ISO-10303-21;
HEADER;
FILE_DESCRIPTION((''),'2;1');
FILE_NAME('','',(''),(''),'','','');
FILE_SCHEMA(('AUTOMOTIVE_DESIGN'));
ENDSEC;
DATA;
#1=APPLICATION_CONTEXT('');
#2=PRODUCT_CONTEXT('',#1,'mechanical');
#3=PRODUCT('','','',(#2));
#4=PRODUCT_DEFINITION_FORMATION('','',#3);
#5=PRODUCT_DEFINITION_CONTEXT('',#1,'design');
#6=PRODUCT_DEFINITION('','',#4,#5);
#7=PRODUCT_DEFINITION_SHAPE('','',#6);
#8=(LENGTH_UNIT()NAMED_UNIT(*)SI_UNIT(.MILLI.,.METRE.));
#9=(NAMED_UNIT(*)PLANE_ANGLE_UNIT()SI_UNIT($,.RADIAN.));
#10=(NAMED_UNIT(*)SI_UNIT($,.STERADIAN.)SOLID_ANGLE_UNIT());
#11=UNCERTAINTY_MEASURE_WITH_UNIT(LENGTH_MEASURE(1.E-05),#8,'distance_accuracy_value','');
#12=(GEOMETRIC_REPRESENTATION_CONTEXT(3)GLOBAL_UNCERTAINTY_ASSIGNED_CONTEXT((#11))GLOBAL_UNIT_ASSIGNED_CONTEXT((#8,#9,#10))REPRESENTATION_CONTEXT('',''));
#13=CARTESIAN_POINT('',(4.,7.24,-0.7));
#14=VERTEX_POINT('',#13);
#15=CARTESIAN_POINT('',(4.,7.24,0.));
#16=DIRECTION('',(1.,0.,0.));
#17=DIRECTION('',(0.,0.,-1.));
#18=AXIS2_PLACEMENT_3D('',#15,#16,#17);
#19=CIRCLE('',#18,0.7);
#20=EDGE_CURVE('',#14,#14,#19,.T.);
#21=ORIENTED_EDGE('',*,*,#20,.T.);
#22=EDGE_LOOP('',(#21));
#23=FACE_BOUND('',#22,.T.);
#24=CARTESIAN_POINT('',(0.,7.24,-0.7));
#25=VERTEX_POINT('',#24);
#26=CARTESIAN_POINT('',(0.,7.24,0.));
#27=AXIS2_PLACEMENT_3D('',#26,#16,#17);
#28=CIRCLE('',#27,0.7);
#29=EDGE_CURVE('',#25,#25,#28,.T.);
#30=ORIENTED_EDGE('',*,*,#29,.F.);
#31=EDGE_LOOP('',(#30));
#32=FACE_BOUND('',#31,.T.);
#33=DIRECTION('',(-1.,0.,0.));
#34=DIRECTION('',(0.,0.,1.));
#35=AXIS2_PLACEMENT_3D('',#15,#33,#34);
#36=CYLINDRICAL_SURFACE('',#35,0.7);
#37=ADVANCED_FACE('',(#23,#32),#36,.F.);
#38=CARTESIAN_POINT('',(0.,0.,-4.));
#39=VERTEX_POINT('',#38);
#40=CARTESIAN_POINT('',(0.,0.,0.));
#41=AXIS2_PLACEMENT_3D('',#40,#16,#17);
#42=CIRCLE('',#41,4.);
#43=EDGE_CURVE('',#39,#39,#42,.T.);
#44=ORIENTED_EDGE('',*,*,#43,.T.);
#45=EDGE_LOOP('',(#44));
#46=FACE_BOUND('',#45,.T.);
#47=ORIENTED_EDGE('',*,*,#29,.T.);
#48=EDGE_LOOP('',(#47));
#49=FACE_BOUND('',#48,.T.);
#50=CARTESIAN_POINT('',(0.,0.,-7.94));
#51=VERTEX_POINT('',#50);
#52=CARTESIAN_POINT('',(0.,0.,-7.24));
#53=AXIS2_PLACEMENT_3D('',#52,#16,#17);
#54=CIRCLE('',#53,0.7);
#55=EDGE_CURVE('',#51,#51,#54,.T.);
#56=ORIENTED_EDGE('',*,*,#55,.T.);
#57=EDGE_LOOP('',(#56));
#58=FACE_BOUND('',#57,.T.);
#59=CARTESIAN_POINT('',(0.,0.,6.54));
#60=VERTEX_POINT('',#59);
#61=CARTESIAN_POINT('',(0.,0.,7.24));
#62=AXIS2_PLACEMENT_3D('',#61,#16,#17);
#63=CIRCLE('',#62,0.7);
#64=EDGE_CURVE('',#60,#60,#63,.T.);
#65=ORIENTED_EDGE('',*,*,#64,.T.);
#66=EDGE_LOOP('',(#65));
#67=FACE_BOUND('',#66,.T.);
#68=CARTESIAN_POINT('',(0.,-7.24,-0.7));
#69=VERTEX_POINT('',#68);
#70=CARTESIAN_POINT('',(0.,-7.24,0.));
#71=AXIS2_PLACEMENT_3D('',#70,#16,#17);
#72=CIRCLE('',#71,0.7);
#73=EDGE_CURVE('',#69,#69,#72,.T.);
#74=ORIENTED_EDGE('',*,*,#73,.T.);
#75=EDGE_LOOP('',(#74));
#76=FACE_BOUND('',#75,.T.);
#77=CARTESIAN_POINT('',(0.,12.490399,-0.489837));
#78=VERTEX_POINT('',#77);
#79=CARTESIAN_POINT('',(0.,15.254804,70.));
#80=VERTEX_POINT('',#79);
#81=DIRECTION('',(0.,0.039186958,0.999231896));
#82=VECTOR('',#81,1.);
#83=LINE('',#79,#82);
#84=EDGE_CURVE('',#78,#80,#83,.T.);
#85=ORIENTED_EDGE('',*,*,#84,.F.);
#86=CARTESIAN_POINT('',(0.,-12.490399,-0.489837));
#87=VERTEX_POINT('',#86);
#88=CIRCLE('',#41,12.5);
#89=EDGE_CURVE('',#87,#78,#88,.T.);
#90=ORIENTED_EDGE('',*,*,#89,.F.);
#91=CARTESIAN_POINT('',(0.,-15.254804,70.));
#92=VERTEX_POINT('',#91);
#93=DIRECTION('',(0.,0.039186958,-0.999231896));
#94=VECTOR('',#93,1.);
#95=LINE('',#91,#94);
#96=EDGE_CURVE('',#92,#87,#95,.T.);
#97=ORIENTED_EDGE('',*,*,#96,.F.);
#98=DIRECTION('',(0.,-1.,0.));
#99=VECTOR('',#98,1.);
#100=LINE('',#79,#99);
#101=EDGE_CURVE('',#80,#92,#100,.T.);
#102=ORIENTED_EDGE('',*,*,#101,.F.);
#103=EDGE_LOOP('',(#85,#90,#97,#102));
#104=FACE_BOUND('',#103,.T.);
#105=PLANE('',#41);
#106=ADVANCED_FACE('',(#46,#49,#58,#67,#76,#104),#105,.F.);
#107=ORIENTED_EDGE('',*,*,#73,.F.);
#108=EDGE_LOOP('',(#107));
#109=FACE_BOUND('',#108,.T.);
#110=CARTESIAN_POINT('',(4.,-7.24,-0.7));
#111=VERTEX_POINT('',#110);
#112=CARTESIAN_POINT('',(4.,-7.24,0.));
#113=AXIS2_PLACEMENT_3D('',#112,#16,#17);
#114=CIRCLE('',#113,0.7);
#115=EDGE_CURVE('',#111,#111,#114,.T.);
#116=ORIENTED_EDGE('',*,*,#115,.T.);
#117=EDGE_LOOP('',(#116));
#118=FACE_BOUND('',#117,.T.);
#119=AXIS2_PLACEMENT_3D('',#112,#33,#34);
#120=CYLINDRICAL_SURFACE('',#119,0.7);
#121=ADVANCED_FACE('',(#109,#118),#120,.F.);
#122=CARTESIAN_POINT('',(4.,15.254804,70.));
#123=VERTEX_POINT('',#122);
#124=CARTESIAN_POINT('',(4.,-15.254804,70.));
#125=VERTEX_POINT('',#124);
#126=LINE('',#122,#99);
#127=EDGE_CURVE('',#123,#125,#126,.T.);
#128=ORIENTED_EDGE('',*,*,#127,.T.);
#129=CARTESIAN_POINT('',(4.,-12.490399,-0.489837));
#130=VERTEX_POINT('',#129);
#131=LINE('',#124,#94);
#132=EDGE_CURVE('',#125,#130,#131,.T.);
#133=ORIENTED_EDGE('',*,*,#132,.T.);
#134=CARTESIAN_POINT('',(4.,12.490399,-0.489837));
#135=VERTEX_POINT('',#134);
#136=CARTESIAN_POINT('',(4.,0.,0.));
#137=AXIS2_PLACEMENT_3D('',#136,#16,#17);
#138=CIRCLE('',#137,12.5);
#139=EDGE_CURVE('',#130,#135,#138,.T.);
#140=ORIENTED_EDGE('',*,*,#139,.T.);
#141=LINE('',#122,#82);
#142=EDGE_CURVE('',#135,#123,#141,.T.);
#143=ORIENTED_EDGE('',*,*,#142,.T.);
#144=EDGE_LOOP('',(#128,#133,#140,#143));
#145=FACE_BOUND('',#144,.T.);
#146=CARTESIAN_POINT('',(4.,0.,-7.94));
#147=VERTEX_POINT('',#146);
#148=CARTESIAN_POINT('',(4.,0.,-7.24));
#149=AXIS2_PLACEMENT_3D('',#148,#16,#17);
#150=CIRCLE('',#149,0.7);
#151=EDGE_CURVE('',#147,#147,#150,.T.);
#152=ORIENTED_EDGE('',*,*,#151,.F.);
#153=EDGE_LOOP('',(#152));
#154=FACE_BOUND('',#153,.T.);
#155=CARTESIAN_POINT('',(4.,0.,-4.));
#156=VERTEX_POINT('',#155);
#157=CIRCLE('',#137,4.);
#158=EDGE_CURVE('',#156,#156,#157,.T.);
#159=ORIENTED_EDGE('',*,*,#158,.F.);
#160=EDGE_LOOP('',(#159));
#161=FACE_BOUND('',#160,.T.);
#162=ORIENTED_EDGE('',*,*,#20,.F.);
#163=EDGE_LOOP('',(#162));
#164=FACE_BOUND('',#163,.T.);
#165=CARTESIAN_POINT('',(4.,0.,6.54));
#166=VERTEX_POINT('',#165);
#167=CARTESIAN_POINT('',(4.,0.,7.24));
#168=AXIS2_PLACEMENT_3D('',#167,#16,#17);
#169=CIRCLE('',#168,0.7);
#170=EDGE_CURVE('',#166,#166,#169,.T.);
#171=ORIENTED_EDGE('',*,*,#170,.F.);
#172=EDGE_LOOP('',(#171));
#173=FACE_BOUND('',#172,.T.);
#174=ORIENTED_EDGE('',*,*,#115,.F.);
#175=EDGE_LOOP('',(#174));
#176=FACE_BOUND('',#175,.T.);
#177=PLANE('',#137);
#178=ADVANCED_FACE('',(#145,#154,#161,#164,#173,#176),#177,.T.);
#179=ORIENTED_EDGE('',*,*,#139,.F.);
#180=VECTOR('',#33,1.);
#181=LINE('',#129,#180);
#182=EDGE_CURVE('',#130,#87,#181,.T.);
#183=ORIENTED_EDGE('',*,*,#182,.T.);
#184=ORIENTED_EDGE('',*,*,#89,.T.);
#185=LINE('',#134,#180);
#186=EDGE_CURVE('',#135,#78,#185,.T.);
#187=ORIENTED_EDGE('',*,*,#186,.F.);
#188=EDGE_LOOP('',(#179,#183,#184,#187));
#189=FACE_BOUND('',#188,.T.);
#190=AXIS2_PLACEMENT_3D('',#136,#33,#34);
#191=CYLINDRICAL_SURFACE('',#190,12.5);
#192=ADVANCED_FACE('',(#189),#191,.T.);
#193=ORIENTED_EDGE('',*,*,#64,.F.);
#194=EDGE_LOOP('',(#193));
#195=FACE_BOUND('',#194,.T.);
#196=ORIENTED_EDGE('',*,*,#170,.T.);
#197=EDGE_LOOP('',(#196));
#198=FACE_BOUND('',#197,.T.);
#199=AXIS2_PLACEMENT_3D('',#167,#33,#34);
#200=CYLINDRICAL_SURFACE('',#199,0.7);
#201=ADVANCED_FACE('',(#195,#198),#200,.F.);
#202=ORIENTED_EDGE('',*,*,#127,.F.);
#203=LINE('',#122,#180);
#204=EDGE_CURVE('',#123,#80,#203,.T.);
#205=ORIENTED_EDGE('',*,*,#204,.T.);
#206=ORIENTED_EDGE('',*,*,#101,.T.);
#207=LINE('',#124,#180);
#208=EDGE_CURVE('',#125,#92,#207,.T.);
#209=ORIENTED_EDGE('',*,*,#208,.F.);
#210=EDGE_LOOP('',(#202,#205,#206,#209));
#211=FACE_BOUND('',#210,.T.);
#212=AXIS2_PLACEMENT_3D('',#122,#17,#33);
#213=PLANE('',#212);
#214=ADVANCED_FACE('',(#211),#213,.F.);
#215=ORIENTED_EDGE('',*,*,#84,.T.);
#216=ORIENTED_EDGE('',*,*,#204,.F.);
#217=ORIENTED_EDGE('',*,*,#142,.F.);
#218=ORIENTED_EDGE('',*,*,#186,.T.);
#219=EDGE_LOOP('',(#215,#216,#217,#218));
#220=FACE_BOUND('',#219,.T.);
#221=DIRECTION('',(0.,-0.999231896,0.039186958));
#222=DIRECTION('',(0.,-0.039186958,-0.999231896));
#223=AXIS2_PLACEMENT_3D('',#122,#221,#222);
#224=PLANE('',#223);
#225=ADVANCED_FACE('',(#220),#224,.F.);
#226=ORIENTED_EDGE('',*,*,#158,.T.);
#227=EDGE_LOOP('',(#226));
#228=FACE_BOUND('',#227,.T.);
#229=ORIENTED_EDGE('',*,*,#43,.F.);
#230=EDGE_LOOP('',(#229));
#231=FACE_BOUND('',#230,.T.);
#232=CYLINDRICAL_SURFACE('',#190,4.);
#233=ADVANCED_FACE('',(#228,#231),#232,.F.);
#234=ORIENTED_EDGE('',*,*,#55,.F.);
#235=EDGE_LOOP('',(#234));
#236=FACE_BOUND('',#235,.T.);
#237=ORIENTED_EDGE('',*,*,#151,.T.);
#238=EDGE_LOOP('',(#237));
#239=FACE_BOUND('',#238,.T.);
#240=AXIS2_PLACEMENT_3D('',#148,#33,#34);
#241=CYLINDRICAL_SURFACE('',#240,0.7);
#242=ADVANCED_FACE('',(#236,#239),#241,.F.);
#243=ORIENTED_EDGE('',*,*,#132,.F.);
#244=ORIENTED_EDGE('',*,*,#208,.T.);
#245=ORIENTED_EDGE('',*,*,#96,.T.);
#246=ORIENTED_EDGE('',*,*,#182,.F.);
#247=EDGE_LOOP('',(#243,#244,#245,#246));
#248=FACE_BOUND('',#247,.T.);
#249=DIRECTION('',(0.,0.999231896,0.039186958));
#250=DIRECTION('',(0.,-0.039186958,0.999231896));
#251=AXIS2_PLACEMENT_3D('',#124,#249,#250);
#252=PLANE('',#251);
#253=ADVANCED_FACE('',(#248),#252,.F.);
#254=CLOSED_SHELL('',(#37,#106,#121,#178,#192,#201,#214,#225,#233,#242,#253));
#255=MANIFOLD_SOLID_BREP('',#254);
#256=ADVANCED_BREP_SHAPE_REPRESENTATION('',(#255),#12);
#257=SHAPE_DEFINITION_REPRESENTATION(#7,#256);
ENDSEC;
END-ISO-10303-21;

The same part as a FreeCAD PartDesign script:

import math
import FreeCAD as App
import Part
import Sketcher

V = App.Vector

doc = App.newDocument("Part")
body = doc.addObject("PartDesign::Body", "Body")

sketch1 = body.newObject("Sketcher::SketchObject", "Sketch")
sketch1.AttachmentSupport = (doc.getObject("YZ_Plane"), [""])
sketch1.MapMode = "FlatFace"
sketch1.addGeometry([
    Part.LineSegment(V(15.254804, 70, 0), V(-15.254804, 70, 0)),
    Part.LineSegment(V(-15.254804, 70, 0), V(-12.490399, -0.489837, 0)),
    Part.ArcOfCircle(Part.Circle(V(0, 0, 0), V(0, 0, 1), 12.5), math.radians(-177.754178), math.radians(-2.245822)),
    Part.LineSegment(V(12.490399, -0.489837, 0), V(15.254804, 70, 0)),
    Part.Circle(V(-7.24, 0, 0), V(0, 0, 1), 0.7),
    Part.Circle(V(0, 7.24, 0), V(0, 0, 1), 0.7),
    Part.Circle(V(0, 0, 0), V(0, 0, 1), 4),
    Part.Circle(V(7.24, 0, 0), V(0, 0, 1), 0.7),
    Part.Circle(V(0, -7.24, 0), V(0, 0, 1), 0.7),
], False)
sketch1.addConstraint([
    Sketcher.Constraint("Coincident", 0, 2, 1, 1),
    Sketcher.Constraint("Tangent", 1, 2, 2, 1),
    Sketcher.Constraint("Tangent", 2, 2, 3, 1),
    Sketcher.Constraint("Coincident", 3, 2, 0, 1),
    Sketcher.Constraint("Horizontal", 0),
    Sketcher.Constraint("Coincident", 2, 3, -1, 1),
    Sketcher.Constraint("Coincident", 6, 3, -1, 1),
    Sketcher.Constraint("Equal", 4, 5),
    Sketcher.Constraint("Equal", 5, 7),
    Sketcher.Constraint("Equal", 7, 8),
    Sketcher.Constraint("Symmetric", 4, 3, 7, 3, -1, 1),
    Sketcher.Constraint("Symmetric", 5, 3, 8, 3, -1, 1),
    Sketcher.Constraint("PointOnObject", 4, 3, -1),
    Sketcher.Constraint("PointOnObject", 5, 3, -2),
    Sketcher.Constraint("Horizontal", 1, 2, 2, 2),
    Sketcher.Constraint("Diameter", 6, 8.0),
    Sketcher.Constraint("Diameter", 4, 1.4),
    Sketcher.Constraint("Radius", 2, 12.5),
    Sketcher.Constraint("DistanceY", -1, 1, 0, 2, 70.0),
    Sketcher.Constraint("DistanceX", 4, 3, -1, 1, 7.24),
    Sketcher.Constraint("DistanceY", -1, 1, 5, 3, 7.24),
    Sketcher.Constraint("DistanceX", 0, 2, 0, 1, 30.509609),
])
pad1 = body.newObject("PartDesign::Pad", "Pad")
pad1.Profile = sketch1
pad1.Length = 4

doc.recompute()
